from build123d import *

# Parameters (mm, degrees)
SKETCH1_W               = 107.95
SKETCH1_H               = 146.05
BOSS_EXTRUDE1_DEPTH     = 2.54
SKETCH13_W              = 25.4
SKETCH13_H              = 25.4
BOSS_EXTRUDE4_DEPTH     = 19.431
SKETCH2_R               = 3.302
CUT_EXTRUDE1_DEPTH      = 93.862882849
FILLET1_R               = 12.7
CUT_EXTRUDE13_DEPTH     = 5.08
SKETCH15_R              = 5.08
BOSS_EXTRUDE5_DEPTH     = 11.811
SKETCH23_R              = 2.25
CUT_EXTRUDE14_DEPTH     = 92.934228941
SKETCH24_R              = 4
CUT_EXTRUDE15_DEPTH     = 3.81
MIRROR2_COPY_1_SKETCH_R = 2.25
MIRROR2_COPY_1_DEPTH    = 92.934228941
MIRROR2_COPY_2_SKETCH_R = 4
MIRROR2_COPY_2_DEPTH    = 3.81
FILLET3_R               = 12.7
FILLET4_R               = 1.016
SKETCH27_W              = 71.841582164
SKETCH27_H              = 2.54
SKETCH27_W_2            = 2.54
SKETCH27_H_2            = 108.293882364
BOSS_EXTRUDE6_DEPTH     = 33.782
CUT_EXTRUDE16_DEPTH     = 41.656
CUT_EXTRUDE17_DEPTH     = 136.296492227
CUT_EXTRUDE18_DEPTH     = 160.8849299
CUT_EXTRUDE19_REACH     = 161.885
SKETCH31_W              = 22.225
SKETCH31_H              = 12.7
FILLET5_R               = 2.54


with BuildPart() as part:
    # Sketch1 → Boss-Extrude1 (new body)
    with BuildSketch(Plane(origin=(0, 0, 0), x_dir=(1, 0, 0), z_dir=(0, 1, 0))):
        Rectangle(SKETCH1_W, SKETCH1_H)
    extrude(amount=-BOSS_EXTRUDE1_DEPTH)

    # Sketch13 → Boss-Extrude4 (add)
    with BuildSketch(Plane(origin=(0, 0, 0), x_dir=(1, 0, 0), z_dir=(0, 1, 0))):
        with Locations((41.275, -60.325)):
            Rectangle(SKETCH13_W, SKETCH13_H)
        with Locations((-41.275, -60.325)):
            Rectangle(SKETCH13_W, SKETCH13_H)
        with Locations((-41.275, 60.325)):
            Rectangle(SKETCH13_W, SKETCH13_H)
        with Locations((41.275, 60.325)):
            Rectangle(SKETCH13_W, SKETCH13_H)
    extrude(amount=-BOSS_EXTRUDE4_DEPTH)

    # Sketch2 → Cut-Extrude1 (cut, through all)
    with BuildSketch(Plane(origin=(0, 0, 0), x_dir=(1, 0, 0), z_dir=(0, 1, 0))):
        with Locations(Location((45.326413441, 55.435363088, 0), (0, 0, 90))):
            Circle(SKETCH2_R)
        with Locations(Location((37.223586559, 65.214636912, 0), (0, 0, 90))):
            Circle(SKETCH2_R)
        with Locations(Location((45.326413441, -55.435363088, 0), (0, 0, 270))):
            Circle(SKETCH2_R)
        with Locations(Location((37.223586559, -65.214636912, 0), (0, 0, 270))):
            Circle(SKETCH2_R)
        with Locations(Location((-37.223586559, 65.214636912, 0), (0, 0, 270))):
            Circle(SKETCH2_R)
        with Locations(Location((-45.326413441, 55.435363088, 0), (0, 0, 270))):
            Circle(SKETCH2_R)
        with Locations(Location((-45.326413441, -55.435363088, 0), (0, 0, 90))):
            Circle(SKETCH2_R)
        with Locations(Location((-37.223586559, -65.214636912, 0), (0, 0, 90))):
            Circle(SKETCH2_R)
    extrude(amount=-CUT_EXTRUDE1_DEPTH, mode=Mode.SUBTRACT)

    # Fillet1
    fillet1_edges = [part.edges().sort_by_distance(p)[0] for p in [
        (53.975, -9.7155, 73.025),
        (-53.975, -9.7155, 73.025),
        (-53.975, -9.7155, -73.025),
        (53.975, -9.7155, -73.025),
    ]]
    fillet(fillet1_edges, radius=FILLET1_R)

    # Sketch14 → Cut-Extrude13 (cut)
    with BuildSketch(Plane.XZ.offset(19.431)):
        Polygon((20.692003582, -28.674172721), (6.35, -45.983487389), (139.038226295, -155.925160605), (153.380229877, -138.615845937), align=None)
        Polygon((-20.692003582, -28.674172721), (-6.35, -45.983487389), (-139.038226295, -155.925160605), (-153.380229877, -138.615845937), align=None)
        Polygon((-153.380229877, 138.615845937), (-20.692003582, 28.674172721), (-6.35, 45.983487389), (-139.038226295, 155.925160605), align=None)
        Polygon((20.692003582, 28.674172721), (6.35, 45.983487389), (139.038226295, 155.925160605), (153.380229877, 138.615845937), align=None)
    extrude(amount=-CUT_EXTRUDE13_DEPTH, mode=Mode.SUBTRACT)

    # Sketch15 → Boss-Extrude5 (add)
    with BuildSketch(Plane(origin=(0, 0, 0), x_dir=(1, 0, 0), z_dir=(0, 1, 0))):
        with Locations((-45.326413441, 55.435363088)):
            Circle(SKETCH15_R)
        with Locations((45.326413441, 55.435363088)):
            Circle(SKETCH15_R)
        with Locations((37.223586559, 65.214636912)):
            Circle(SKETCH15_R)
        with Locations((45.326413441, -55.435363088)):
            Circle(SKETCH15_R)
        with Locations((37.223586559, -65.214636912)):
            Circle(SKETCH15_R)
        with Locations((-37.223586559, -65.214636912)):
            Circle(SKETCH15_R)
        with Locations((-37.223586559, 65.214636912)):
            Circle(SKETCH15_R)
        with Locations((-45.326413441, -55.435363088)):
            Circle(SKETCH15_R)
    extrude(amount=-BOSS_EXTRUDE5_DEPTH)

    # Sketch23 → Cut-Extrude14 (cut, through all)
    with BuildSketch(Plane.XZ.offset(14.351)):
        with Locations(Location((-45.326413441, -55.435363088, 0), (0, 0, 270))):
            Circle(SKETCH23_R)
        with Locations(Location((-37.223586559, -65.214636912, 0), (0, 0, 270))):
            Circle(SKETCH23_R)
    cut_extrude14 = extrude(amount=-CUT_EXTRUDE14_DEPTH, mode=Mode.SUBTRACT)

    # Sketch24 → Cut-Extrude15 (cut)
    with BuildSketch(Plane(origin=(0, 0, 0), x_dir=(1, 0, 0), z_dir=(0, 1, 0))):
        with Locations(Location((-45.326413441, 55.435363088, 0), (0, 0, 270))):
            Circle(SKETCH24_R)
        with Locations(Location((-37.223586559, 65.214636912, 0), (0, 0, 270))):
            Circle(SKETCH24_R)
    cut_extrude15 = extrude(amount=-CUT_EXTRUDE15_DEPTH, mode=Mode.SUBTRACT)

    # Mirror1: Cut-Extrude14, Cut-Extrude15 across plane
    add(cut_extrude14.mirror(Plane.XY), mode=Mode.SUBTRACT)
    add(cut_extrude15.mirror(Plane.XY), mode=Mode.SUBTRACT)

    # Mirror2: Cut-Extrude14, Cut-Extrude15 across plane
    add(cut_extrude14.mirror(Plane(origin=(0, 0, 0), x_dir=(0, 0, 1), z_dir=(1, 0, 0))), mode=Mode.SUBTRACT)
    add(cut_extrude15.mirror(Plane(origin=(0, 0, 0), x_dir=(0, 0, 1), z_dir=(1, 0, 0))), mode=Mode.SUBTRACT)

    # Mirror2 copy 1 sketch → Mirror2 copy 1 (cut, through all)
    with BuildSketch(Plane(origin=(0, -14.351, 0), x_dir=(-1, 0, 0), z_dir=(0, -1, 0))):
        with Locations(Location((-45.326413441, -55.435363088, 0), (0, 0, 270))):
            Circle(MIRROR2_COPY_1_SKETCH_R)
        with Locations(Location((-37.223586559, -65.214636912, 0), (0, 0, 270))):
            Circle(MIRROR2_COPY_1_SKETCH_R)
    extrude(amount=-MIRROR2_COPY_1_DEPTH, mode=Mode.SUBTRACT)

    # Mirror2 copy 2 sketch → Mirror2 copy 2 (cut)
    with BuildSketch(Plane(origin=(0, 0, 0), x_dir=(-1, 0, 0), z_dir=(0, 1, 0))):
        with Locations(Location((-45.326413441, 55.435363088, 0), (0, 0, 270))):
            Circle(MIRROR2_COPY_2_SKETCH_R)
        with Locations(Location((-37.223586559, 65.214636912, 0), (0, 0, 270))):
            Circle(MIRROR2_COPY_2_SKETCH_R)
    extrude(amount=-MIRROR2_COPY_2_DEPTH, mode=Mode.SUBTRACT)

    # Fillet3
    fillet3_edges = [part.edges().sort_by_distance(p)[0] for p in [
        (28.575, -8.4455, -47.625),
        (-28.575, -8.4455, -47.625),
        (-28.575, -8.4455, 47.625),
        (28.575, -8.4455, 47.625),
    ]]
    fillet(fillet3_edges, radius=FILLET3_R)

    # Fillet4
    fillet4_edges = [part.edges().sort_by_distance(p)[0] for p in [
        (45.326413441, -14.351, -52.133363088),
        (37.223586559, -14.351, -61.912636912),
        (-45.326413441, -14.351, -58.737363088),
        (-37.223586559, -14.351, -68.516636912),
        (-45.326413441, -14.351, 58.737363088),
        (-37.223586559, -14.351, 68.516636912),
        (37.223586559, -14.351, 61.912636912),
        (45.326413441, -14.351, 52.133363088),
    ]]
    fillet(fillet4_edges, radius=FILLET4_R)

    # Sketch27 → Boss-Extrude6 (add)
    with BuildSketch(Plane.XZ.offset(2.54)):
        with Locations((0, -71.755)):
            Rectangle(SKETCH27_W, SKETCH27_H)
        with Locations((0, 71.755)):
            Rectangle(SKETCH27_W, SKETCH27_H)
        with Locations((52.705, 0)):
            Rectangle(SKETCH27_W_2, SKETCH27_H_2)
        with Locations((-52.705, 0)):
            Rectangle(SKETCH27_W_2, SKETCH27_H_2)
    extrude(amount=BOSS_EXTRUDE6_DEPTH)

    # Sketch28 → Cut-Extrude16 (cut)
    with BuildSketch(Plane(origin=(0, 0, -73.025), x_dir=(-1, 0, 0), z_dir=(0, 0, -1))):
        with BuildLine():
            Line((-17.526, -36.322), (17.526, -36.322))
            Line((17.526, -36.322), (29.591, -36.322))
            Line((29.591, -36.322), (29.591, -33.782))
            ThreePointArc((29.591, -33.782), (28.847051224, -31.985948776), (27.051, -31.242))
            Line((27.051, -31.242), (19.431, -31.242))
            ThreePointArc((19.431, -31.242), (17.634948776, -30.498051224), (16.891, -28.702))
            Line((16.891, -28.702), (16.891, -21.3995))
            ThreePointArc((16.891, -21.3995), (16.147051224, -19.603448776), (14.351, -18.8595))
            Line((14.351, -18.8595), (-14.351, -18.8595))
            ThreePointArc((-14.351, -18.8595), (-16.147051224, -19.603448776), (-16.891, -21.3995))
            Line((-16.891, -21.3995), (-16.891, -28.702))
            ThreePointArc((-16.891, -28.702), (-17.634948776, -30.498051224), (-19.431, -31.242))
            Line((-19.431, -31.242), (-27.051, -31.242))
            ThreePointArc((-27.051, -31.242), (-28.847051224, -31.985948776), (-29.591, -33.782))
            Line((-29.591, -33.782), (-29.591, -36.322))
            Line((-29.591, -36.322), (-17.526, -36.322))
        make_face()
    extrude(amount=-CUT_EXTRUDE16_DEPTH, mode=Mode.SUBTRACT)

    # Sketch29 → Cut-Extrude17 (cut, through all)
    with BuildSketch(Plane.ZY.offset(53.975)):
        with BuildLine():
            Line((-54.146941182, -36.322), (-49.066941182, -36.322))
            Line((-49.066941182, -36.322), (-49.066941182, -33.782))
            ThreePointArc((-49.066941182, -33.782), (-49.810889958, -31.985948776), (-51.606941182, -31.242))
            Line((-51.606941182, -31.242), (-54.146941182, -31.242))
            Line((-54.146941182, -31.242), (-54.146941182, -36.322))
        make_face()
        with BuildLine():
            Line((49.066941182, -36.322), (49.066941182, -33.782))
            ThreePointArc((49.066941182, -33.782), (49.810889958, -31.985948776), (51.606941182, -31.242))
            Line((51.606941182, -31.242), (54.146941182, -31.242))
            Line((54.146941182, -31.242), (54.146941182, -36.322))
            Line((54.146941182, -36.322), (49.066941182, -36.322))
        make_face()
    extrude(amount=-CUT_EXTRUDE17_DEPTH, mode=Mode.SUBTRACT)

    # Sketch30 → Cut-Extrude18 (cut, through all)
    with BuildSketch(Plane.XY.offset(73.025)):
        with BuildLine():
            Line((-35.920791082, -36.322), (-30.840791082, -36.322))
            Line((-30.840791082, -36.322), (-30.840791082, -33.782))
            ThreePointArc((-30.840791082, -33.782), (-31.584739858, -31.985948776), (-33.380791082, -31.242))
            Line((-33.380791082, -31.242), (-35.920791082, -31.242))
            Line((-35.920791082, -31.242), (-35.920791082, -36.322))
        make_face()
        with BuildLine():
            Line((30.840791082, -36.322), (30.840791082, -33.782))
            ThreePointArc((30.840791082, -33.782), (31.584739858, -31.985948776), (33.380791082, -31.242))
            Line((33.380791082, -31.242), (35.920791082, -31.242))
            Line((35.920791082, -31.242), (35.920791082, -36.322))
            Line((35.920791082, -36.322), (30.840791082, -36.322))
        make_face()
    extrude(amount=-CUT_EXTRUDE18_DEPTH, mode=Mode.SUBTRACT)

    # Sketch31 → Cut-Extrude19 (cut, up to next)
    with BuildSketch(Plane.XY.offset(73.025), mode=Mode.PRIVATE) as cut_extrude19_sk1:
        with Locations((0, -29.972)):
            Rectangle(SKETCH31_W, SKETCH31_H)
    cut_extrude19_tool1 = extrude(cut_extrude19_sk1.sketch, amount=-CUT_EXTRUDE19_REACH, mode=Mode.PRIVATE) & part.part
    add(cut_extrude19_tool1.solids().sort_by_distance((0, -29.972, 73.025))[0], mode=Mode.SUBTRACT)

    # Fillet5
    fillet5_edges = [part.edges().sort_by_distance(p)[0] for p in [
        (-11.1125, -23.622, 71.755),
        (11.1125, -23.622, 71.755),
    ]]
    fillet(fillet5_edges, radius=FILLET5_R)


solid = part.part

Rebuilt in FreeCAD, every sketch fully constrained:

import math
import FreeCAD as App
import Part
import Sketcher
Q = App.Units.Quantity


def edges_at(feature, points):
    """Names of the edges that pass closest to the given points."""
    edges = feature.Shape.Edges
    near = lambda p: min(range(len(edges)), key=lambda i: edges[i].distToShape(Part.Vertex(*p))[0])
    return sorted({f"Edge{near(p) + 1}" for p in points})

doc = App.newDocument("Part")
body = doc.addObject("PartDesign::Body", "Body")

sketch1 = body.newObject("Sketcher::SketchObject", "Sketch")
sketch1.AttachmentSupport = (doc.getObject("XZ_Plane"), [""])
sketch1.MapMode = "FlatFace"
sketch1.addGeometry([
    Part.LineSegment(App.Vector(-54, -73, 0), App.Vector(-54, 73, 0)),
    Part.LineSegment(App.Vector(-54, 73, 0), App.Vector(54, 73, 0)),
    Part.LineSegment(App.Vector(54, 73, 0), App.Vector(54, -73, 0)),
    Part.LineSegment(App.Vector(54, -73, 0), App.Vector(-54, -73, 0)),
], False)
sketch1.addConstraint([
    Sketcher.Constraint("Coincident", 0, 2, 1, 1),
    Sketcher.Constraint("Coincident", 1, 2, 2, 1),
    Sketcher.Constraint("Coincident", 2, 2, 3, 1),
    Sketcher.Constraint("Coincident", 3, 2, 0, 1),
    Sketcher.Constraint("Vertical", 0),
    Sketcher.Constraint("Horizontal", 1),
    Sketcher.Constraint("Vertical", 2),
    Sketcher.Constraint("Horizontal", 3),
    Sketcher.Constraint("Symmetric", 0, 2, 2, 2, -1, 1),
    Sketcher.Constraint("DistanceX", 1, 1, 1, 2, Q("4.25 in")),
    Sketcher.Constraint("DistanceY", 0, 1, 0, 2, Q("5.75 in")),
])
pad1 = body.newObject("PartDesign::Pad", "Pad")
pad1.Profile = sketch1
pad1.Length = Q("0.1 in")

sketch2 = body.newObject("Sketcher::SketchObject", "Sketch001")
sketch2.AttachmentSupport = (doc.getObject("XZ_Plane"), [""])
sketch2.MapMode = "FlatFace"
sketch2.addGeometry([
    Part.LineSegment(App.Vector(29, 48, 0), App.Vector(29, 73, 0)),
    Part.LineSegment(App.Vector(29, 73, 0), App.Vector(54, 73, 0)),
    Part.LineSegment(App.Vector(54, 73, 0), App.Vector(54, 48, 0)),
    Part.LineSegment(App.Vector(54, 48, 0), App.Vector(29, 48, 0)),
    Part.LineSegment(App.Vector(-54, 48, 0), App.Vector(-54, 73, 0)),
    Part.LineSegment(App.Vector(-54, 73, 0), App.Vector(-29, 73, 0)),
    Part.LineSegment(App.Vector(-29, 73, 0), App.Vector(-29, 48, 0)),
    Part.LineSegment(App.Vector(-29, 48, 0), App.Vector(-54, 48, 0)),
    Part.LineSegment(App.Vector(-54, -73, 0), App.Vector(-54, -48, 0)),
    Part.LineSegment(App.Vector(-54, -48, 0), App.Vector(-29, -48, 0)),
    Part.LineSegment(App.Vector(-29, -48, 0), App.Vector(-29, -73, 0)),
    Part.LineSegment(App.Vector(-29, -73, 0), App.Vector(-54, -73, 0)),
    Part.LineSegment(App.Vector(29, -73, 0), App.Vector(29, -48, 0)),
    Part.LineSegment(App.Vector(29, -48, 0), App.Vector(54, -48, 0)),
    Part.LineSegment(App.Vector(54, -48, 0), App.Vector(54, -73, 0)),
    Part.LineSegment(App.Vector(54, -73, 0), App.Vector(29, -73, 0)),
], False)
sketch2.addConstraint([
    Sketcher.Constraint("Coincident", 0, 2, 1, 1),
    Sketcher.Constraint("Coincident", 1, 2, 2, 1),
    Sketcher.Constraint("Coincident", 2, 2, 3, 1),
    Sketcher.Constraint("Coincident", 3, 2, 0, 1),
    Sketcher.Constraint("Coincident", 4, 2, 5, 1),
    Sketcher.Constraint("Coincident", 5, 2, 6, 1),
    Sketcher.Constraint("Coincident", 6, 2, 7, 1),
    Sketcher.Constraint("Coincident", 7, 2, 4, 1),
    Sketcher.Constraint("Coincident", 8, 2, 9, 1),
    Sketcher.Constraint("Coincident", 9, 2, 10, 1),
    Sketcher.Constraint("Coincident", 10, 2, 11, 1),
    Sketcher.Constraint("Coincident", 11, 2, 8, 1),
    Sketcher.Constraint("Coincident", 12, 2, 13, 1),
    Sketcher.Constraint("Coincident", 13, 2, 14, 1),
    Sketcher.Constraint("Coincident", 14, 2, 15, 1),
    Sketcher.Constraint("Coincident", 15, 2, 12, 1),
    Sketcher.Constraint("Vertical", 0),
    Sketcher.Constraint("Horizontal", 1),
    Sketcher.Constraint("Vertical", 2),
    Sketcher.Constraint("Horizontal", 3),
    Sketcher.Constraint("Vertical", 4),
    Sketcher.Constraint("Horizontal", 5),
    Sketcher.Constraint("Vertical", 6),
    Sketcher.Constraint("Horizontal", 7),
    Sketcher.Constraint("Vertical", 8),
    Sketcher.Constraint("Horizontal", 9),
    Sketcher.Constraint("Vertical", 10),
    Sketcher.Constraint("Horizontal", 11),
    Sketcher.Constraint("Vertical", 12),
    Sketcher.Constraint("Horizontal", 13),
    Sketcher.Constraint("Vertical", 14),
    Sketcher.Constraint("Horizontal", 15),
    Sketcher.Constraint("Symmetric", 2, 2, 8, 2, -1, 1),
    Sketcher.Constraint("Symmetric", 0, 2, 10, 2, -1, 1),
    Sketcher.Constraint("Symmetric", 6, 2, 12, 2, -1, 1),
    Sketcher.Constraint("Symmetric", 4, 2, 14, 2, -1, 1),
    Sketcher.Constraint("Symmetric", 1, 2, 4, 2, -2),
    Sketcher.Constraint("Symmetric", 3, 2, 6, 2, -2),
    Sketcher.Constraint("Equal", 15, 0),
    Sketcher.Constraint("DistanceX", 1, 1, 1, 2, Q("1 in")),
    Sketcher.Constraint("DistanceX", 4, 2, 0, 2, Q("3.25 in")),
    Sketcher.Constraint("DistanceY", 8, 2, 7, 2, Q("3.75 in")),
])
pad2 = body.newObject("PartDesign::Pad", "Pad001")
pad2.Profile = sketch2
pad2.Length = Q("0.765 in")

sketch3 = body.newObject("Sketcher::SketchObject", "Sketch002")
sketch3.AttachmentSupport = (doc.getObject("XZ_Plane"), [""])
sketch3.MapMode = "FlatFace"
sketch3.addGeometry([
    Part.Circle(App.Vector(45.3, -55.4, 0), App.Vector(0, 0, 1), 3.3),
    Part.Circle(App.Vector(37.2, -65.2, 0), App.Vector(0, 0, 1), 3.3),
    Part.Circle(App.Vector(45.3, 55.4, 0), App.Vector(0, 0, 1), 3.3),
    Part.Circle(App.Vector(37.2, 65.2, 0), App.Vector(0, 0, 1), 3.3),
    Part.Circle(App.Vector(-37.2, -65.2, 0), App.Vector(0, 0, 1), 3.3),
    Part.Circle(App.Vector(-45.3, -55.4, 0), App.Vector(0, 0, 1), 3.3),
    Part.Circle(App.Vector(-45.3, 55.4, 0), App.Vector(0, 0, 1), 3.3),
    Part.Circle(App.Vector(-37.2, 65.2, 0), App.Vector(0, 0, 1), 3.3),
], False)
sketch3.addConstraint([
    Sketcher.Constraint("Equal", 0, 1),
    Sketcher.Constraint("Equal", 1, 2),
    Sketcher.Constraint("Equal", 2, 3),
    Sketcher.Constraint("Equal", 3, 4),
    Sketcher.Constraint("Equal", 4, 5),
    Sketcher.Constraint("Equal", 5, 6),
    Sketcher.Constraint("Equal", 6, 7),
    Sketcher.Constraint("Symmetric", 3, 3, 4, 3, -1, 1),
    Sketcher.Constraint("Symmetric", 2, 3, 5, 3, -1, 1),
    Sketcher.Constraint("Symmetric", 0, 3, 6, 3, -1, 1),
    Sketcher.Constraint("Symmetric", 1, 3, 7, 3, -1, 1),
    Sketcher.Constraint("Symmetric", 1, 3, 4, 3, -2),
    Sketcher.Constraint("Symmetric", 0, 3, 5, 3, -2),
    Sketcher.Constraint("Diameter", 0, Q("0.26 in")),
    Sketcher.Constraint("DistanceY", 1, 3, 2, 3, Q("4.75 in")),
    Sketcher.Constraint("DistanceX", 4, 3, 0, 3, Q("3.25 in")),
    Sketcher.Constraint("DistanceX", -1, 1, 0, 3, 45.326413),
    Sketcher.Constraint("DistanceY", 0, 3, -1, 1, 55.435363),
])
pocket1 = body.newObject("PartDesign::Pocket", "Pocket")
pocket1.Profile = sketch3
pocket1.Type = "ThroughAll"
pocket1.Reversed = True
doc.recompute()

fillet = body.newObject("PartDesign::Fillet", "Fillet")
fillet.Base = (pocket1, edges_at(pocket1, [
    (53.975, -9.716, 73.025),
    (-53.975, -9.716, 73.025),
    (-53.975, -9.716, -73.025),
    (53.975, -9.716, -73.025),
]))
fillet.Radius = Q("0.5 in")

sketch4 = body.newObject("Sketcher::SketchObject", "Sketch003")
sketch4.AttachmentSupport = (doc.getObject("XZ_Plane"), [""])
sketch4.MapMode = "FlatFace"
sketch4.AttachmentOffset = App.Placement(App.Vector(0, 0, 0.765 * 25.4), App.Rotation())
sketch4.addGeometry([
    Part.LineSegment(App.Vector(21, -29, 0), App.Vector(6, -46, 0)),
    Part.LineSegment(App.Vector(6, -46, 0), App.Vector(139, -156, 0)),
    Part.LineSegment(App.Vector(139, -156, 0), App.Vector(153, -139, 0)),
    Part.LineSegment(App.Vector(153, -139, 0), App.Vector(21, -29, 0)),
    Part.LineSegment(App.Vector(-6, -46, 0), App.Vector(-21, -29, 0)),
    Part.LineSegment(App.Vector(-21, -29, 0), App.Vector(-153, -139, 0)),
    Part.LineSegment(App.Vector(-153, -139, 0), App.Vector(-139, -156, 0)),
    Part.LineSegment(App.Vector(-139, -156, 0), App.Vector(-6, -46, 0)),
    Part.LineSegment(App.Vector(-153, 139, 0), App.Vector(-21, 29, 0)),
    Part.LineSegment(App.Vector(-21, 29, 0), App.Vector(-6, 46, 0)),
    Part.LineSegment(App.Vector(-6, 46, 0), App.Vector(-139, 156, 0)),
    Part.LineSegment(App.Vector(-139, 156, 0), App.Vector(-153, 139, 0)),
    Part.LineSegment(App.Vector(6, 46, 0), App.Vector(21, 29, 0)),
    Part.LineSegment(App.Vector(21, 29, 0), App.Vector(153, 139, 0)),
    Part.LineSegment(App.Vector(153, 139, 0), App.Vector(139, 156, 0)),
    Part.LineSegment(App.Vector(139, 156, 0), App.Vector(6, 46, 0)),
], False)
sketch4.addConstraint([
    Sketcher.Constraint("Coincident", 0, 2, 1, 1),
    Sketcher.Constraint("Coincident", 1, 2, 2, 1),
    Sketcher.Constraint("Coincident", 2, 2, 3, 1),
    Sketcher.Constraint("Coincident", 3, 2, 0, 1),
    Sketcher.Constraint("Coincident", 4, 2, 5, 1),
    Sketcher.Constraint("Coincident", 5, 2, 6, 1),
    Sketcher.Constraint("Coincident", 6, 2, 7, 1),
    Sketcher.Constraint("Coincident", 7, 2, 4, 1),
    Sketcher.Constraint("Coincident", 8, 2, 9, 1),
    Sketcher.Constraint("Coincident", 9, 2, 10, 1),
    Sketcher.Constraint("Coincident", 10, 2, 11, 1),
    Sketcher.Constraint("Coincident", 11, 2, 8, 1),
    Sketcher.Constraint("Coincident", 12, 2, 13, 1),
    Sketcher.Constraint("Coincident", 13, 2, 14, 1),
    Sketcher.Constraint("Coincident", 14, 2, 15, 1),
    Sketcher.Constraint("Coincident", 15, 2, 12, 1),
    Sketcher.Constraint("Symmetric", 3, 2, 8, 2, -1, 1),
    Sketcher.Constraint("Symmetric", 0, 2, 9, 2, -1, 1),
    Sketcher.Constraint("Symmetric", 1, 2, 10, 2, -1, 1),
    Sketcher.Constraint("Symmetric", 2, 2, 11, 2, -1, 1),
    Sketcher.Constraint("Symmetric", 4, 2, 12, 2, -1, 1),
    Sketcher.Constraint("Symmetric", 5, 2, 13, 2, -1, 1),
    Sketcher.Constraint("Symmetric", 6, 2, 14, 2, -1, 1),
    Sketcher.Constraint("Symmetric", 7, 2, 15, 2, -1, 1),
    Sketcher.Constraint("Symmetric", 3, 2, 4, 2, -2),
    Sketcher.Constraint("Symmetric", 2, 2, 5, 2, -2),
    Sketcher.Constraint("Symmetric", 1, 2, 6, 2, -2),
    Sketcher.Constraint("Symmetric", 0, 2, 7, 2, -2),
    Sketcher.Constraint("Perpendicular", 0, 1),
    Sketcher.Constraint("Perpendicular", 1, 2),
    Sketcher.Constraint("Perpendicular", 2, 3),
    Sketcher.Constraint("DistanceX", 7, 2, 0, 2, Q("0.5 in")),
    Sketcher.Constraint("Distance", 0, Q("0.885 in")),
    Sketcher.Constraint("DistanceX", 3, 2, 1, 2, Q("4.6593001 in")),
    Sketcher.Constraint("DistanceY", 1, 2, -1, 1, 155.925161),
    Sketcher.Constraint("DistanceX", -1, 1, 2, 2, 153.38023),
])
pocket2 = body.newObject("PartDesign::Pocket", "Pocket001")
pocket2.Profile = sketch4
pocket2.Length = Q("0.2 in")

sketch5 = body.newObject("Sketcher::SketchObject", "Sketch004")
sketch5.AttachmentSupport = (doc.getObject("XZ_Plane"), [""])
sketch5.MapMode = "FlatFace"
sketch5.addGeometry([
    Part.Circle(App.Vector(-45, -55, 0), App.Vector(0, 0, 1), 5),
    Part.Circle(App.Vector(45, -55, 0), App.Vector(0, 0, 1), 5),
    Part.Circle(App.Vector(37, -65, 0), App.Vector(0, 0, 1), 5),
    Part.Circle(App.Vector(45, 55, 0), App.Vector(0, 0, 1), 5),
    Part.Circle(App.Vector(37, 65, 0), App.Vector(0, 0, 1), 5),
    Part.Circle(App.Vector(-37, 65, 0), App.Vector(0, 0, 1), 5),
    Part.Circle(App.Vector(-37, -65, 0), App.Vector(0, 0, 1), 5),
    Part.Circle(App.Vector(-45, 55, 0), App.Vector(0, 0, 1), 5),
], False)
sketch5.addConstraint([
    Sketcher.Constraint("Equal", 0, 1),
    Sketcher.Constraint("Equal", 1, 2),
    Sketcher.Constraint("Equal", 2, 3),
    Sketcher.Constraint("Equal", 3, 4),
    Sketcher.Constraint("Equal", 4, 5),
    Sketcher.Constraint("Equal", 5, 6),
    Sketcher.Constraint("Equal", 6, 7),
    Sketcher.Constraint("Symmetric", 0, 3, 3, 3, -1, 1),
    Sketcher.Constraint("Symmetric", 2, 3, 5, 3, -1, 1),
    Sketcher.Constraint("Symmetric", 4, 3, 6, 3, -1, 1),
    Sketcher.Constraint("Symmetric", 1, 3, 7, 3, -1, 1),
    Sketcher.Constraint("Symmetric", 0, 3, 1, 3, -2),
    Sketcher.Constraint("Symmetric", 4, 3, 5, 3, -2),
    Sketcher.Constraint("Diameter", 0, Q("0.4 in")),
    Sketcher.Constraint("DistanceX", 0, 3, 2, 3, Q("3.25 in")),
    Sketcher.Constraint("DistanceY", 2, 3, 3, 3, Q("4.75 in")),
    Sketcher.Constraint("DistanceX", 0, 3, -1, 1, 45.326413),
    Sketcher.Constraint("DistanceY", 0, 3, -1, 1, 55.435363),
])
pad3 = body.newObject("PartDesign::Pad", "Pad002")
pad3.Profile = sketch5
pad3.Length = Q("0.465 in")

sketch6 = body.newObject("Sketcher::SketchObject", "Sketch005")
sketch6.AttachmentSupport = (doc.getObject("XZ_Plane"), [""])
sketch6.MapMode = "FlatFace"
sketch6.AttachmentOffset = App.Placement(App.Vector(0, 0, 0.565 * 25.4), App.Rotation())
sketch6.addGeometry([
    Part.Circle(App.Vector(-45.3, -55.4, 0), App.Vector(0, 0, 1), 2.2),
    Part.Circle(App.Vector(-37.2, -65.2, 0), App.Vector(0, 0, 1), 2.2),
], False)
sketch6.addConstraint([
    Sketcher.Constraint("Equal", 0, 1),
    Sketcher.Constraint("Diameter", 0, 4.5),
    Sketcher.Constraint("DistanceX", 0, 3, -1, 1, 45.326413),
    Sketcher.Constraint("DistanceY", 0, 3, -1, 1, 55.435363),
    Sketcher.Constraint("DistanceX", 1, 3, -1, 1, 37.223587),
    Sketcher.Constraint("DistanceY", 1, 3, -1, 1, 65.214637),
])
pocket3 = body.newObject("PartDesign::Pocket", "Pocket002")
pocket3.Profile = sketch6
pocket3.Type = "ThroughAll"

sketch7 = body.newObject("Sketcher::SketchObject", "Sketch006")
sketch7.AttachmentSupport = (doc.getObject("XZ_Plane"), [""])
sketch7.MapMode = "FlatFace"
sketch7.addGeometry([
    Part.Circle(App.Vector(-45.3, -55.4, 0), App.Vector(0, 0, 1), 4),
    Part.Circle(App.Vector(-37.2, -65.2, 0), App.Vector(0, 0, 1), 4),
], False)
sketch7.addConstraint([
    Sketcher.Constraint("Equal", 0, 1),
    Sketcher.Constraint("Diameter", 0, 8.0),
    Sketcher.Constraint("DistanceX", 0, 3, -1, 1, 45.326413),
    Sketcher.Constraint("DistanceY", 0, 3, -1, 1, 55.435363),
    Sketcher.Constraint("DistanceX", 1, 3, -1, 1, 37.223587),
    Sketcher.Constraint("DistanceY", 1, 3, -1, 1, 65.214637),
])
pocket4 = body.newObject("PartDesign::Pocket", "Pocket003")
pocket4.Profile = sketch7
pocket4.Length = Q("0.15 in")
pocket4.Reversed = True
doc.recompute()

mirrored = body.newObject("PartDesign::Mirrored", "Mirrored")
mirrored.Originals = [pocket3, pocket4]
mirrored.MirrorPlane = (doc.getObject("XY_Plane"), [""])
body.Tip = mirrored
doc.recompute()

mirrored2 = body.newObject("PartDesign::Mirrored", "Mirrored001")
mirrored2.Originals = [pocket3, pocket4]
mirrored2.MirrorPlane = (doc.getObject("YZ_Plane"), [""])
body.Tip = mirrored2

sketch8 = body.newObject("Sketcher::SketchObject", "Sketch007")
sketch8.AttachmentSupport = (doc.getObject("XZ_Plane"), [""])
sketch8.MapMode = "FlatFace"
sketch8.AttachmentOffset = App.Placement(App.Vector(0, 0, 0.565 * 25.4), App.Rotation())
sketch8.addGeometry([
    Part.Circle(App.Vector(45.3, 55.4, 0), App.Vector(0, 0, 1), 2.2),
    Part.Circle(App.Vector(37.2, 65.2, 0), App.Vector(0, 0, 1), 2.2),
], False)
sketch8.addConstraint([
    Sketcher.Constraint("Equal", 0, 1),
    Sketcher.Constraint("Diameter", 0, 4.5),
    Sketcher.Constraint("DistanceX", -1, 1, 0, 3, 45.326413),
    Sketcher.Constraint("DistanceY", -1, 1, 0, 3, 55.435363),
    Sketcher.Constraint("DistanceX", -1, 1, 1, 3, 37.223587),
    Sketcher.Constraint("DistanceY", -1, 1, 1, 3, 65.214637),
])
pocket5 = body.newObject("PartDesign::Pocket", "Pocket004")
pocket5.Profile = sketch8
pocket5.Type = "ThroughAll"

sketch9 = body.newObject("Sketcher::SketchObject", "Sketch008")
sketch9.AttachmentSupport = (doc.getObject("XZ_Plane"), [""])
sketch9.MapMode = "FlatFace"
sketch9.addGeometry([
    Part.Circle(App.Vector(45.3, 55.4, 0), App.Vector(0, 0, 1), 4),
    Part.Circle(App.Vector(37.2, 65.2, 0), App.Vector(0, 0, 1), 4),
], False)
sketch9.addConstraint([
    Sketcher.Constraint("Equal", 0, 1),
    Sketcher.Constraint("Diameter", 0, 8.0),
    Sketcher.Constraint("DistanceX", -1, 1, 0, 3, 45.326413),
    Sketcher.Constraint("DistanceY", -1, 1, 0, 3, 55.435363),
    Sketcher.Constraint("DistanceX", -1, 1, 1, 3, 37.223587),
    Sketcher.Constraint("DistanceY", -1, 1, 1, 3, 65.214637),
])
pocket6 = body.newObject("PartDesign::Pocket", "Pocket005")
pocket6.Profile = sketch9
pocket6.Length = Q("0.15 in")
pocket6.Reversed = True
doc.recompute()

fillet2 = body.newObject("PartDesign::Fillet", "Fillet001")
fillet2.Base = (pocket6, edges_at(pocket6, [
    (28.575, -8.445, -47.625),
    (-28.575, -8.445, -47.625),
    (-28.575, -8.445, 47.625),
    (28.575, -8.445, 47.625),
]))
fillet2.Radius = Q("0.5 in")
doc.recompute()

fillet3 = body.newObject("PartDesign::Fillet", "Fillet002")
fillet3.Base = (fillet2, edges_at(fillet2, [
    (45.326, -14.351, -52.133),
    (37.224, -14.351, -61.913),
    (-45.326, -14.351, -58.737),
    (-37.224, -14.351, -68.517),
    (-45.326, -14.351, 58.737),
    (-37.224, -14.351, 68.517),
    (37.224, -14.351, 61.913),
    (45.326, -14.351, 52.133),
]))
fillet3.Radius = Q("0.04 in")

sketch10 = body.newObject("Sketcher::SketchObject", "Sketch009")
sketch10.AttachmentSupport = (doc.getObject("XZ_Plane"), [""])
sketch10.MapMode = "FlatFace"
sketch10.AttachmentOffset = App.Placement(App.Vector(0, 0, 0.1 * 25.4), App.Rotation())
sketch10.addGeometry([
    Part.LineSegment(App.Vector(-35.9, -70.5, 0), App.Vector(-35.9, -73, 0)),
    Part.LineSegment(App.Vector(-35.9, -73, 0), App.Vector(35.9, -73, 0)),
    Part.LineSegment(App.Vector(35.9, -73, 0), App.Vector(35.9, -70.5, 0)),
    Part.LineSegment(App.Vector(35.9, -70.5, 0), App.Vector(-35.9, -70.5, 0)),
    Part.LineSegment(App.Vector(-35.9, 73, 0), App.Vector(-35.9, 70.5, 0)),
    Part.LineSegment(App.Vector(-35.9, 70.5, 0), App.Vector(35.9, 70.5, 0)),
    Part.LineSegment(App.Vector(35.9, 70.5, 0), App.Vector(35.9, 73, 0)),
    Part.LineSegment(App.Vector(35.9, 73, 0), App.Vector(-35.9, 73, 0)),
    Part.LineSegment(App.Vector(51.4, 54.1, 0), App.Vector(51.4, -54.1, 0)),
    Part.LineSegment(App.Vector(51.4, -54.1, 0), App.Vector(54, -54.1, 0)),
    Part.LineSegment(App.Vector(54, -54.1, 0), App.Vector(54, 54.1, 0)),
    Part.LineSegment(App.Vector(54, 54.1, 0), App.Vector(51.4, 54.1, 0)),
    Part.LineSegment(App.Vector(-54, 54.1, 0), App.Vector(-54, -54.1, 0)),
    Part.LineSegment(App.Vector(-54, -54.1, 0), App.Vector(-51.4, -54.1, 0)),
    Part.LineSegment(App.Vector(-51.4, -54.1, 0), App.Vector(-51.4, 54.1, 0)),
    Part.LineSegment(App.Vector(-51.4, 54.1, 0), App.Vector(-54, 54.1, 0)),
], False)
sketch10.addConstraint([
    Sketcher.Constraint("Coincident", 0, 2, 1, 1),
    Sketcher.Constraint("Coincident", 1, 2, 2, 1),
    Sketcher.Constraint("Coincident", 2, 2, 3, 1),
    Sketcher.Constraint("Coincident", 3, 2, 0, 1),
    Sketcher.Constraint("Coincident", 4, 2, 5, 1),
    Sketcher.Constraint("Coincident", 5, 2, 6, 1),
    Sketcher.Constraint("Coincident", 6, 2, 7, 1),
    Sketcher.Constraint("Coincident", 7, 2, 4, 1),
    Sketcher.Constraint("Coincident", 8, 2, 9, 1),
    Sketcher.Constraint("Coincident", 9, 2, 10, 1),
    Sketcher.Constraint("Coincident", 10, 2, 11, 1),
    Sketcher.Constraint("Coincident", 11, 2, 8, 1),
    Sketcher.Constraint("Coincident", 12, 2, 13, 1),
    Sketcher.Constraint("Coincident", 13, 2, 14, 1),
    Sketcher.Constraint("Coincident", 14, 2, 15, 1),
    Sketcher.Constraint("Coincident", 15, 2, 12, 1),
    Sketcher.Constraint("Vertical", 0),
    Sketcher.Constraint("Horizontal", 1),
    Sketcher.Constraint("Vertical", 2),
    Sketcher.Constraint("Horizontal", 3),
    Sketcher.Constraint("Vertical", 4),
    Sketcher.Constraint("Horizontal", 5),
    Sketcher.Constraint("Vertical", 6),
    Sketcher.Constraint("Horizontal", 7),
    Sketcher.Constraint("Vertical", 8),
    Sketcher.Constraint("Horizontal", 9),
    Sketcher.Constraint("Vertical", 10),
    Sketcher.Constraint("Horizontal", 11),
    Sketcher.Constraint("Vertical", 12),
    Sketcher.Constraint("Horizontal", 13),
    Sketcher.Constraint("Vertical", 14),
    Sketcher.Constraint("Horizontal", 15),
    Sketcher.Constraint("Symmetric", 2, 2, 4, 2, -1, 1),
    Sketcher.Constraint("Symmetric", 0, 2, 6, 2, -1, 1),
    Sketcher.Constraint("Symmetric", 10, 2, 12, 2, -1, 1),
    Sketcher.Constraint("Symmetric", 8, 2, 14, 2, -1, 1),
    Sketcher.Constraint("Horizontal", 9, 2, 12, 2),
    Sketcher.Constraint("Vertical", 3, 2, 4, 2),
    Sketcher.Constraint("Equal", 15, 0),
    Sketcher.Constraint("DistanceX", 9, 1, 9, 2, Q("0.1 in")),
    Sketcher.Constraint("DistanceY", 3, 2, 4, 2, Q("5.55 in")),
    Sketcher.Constraint("DistanceX", 12, 2, 8, 2, Q("4.15 in")),
    Sketcher.Constraint("DistanceX", 1, 1, 1, 2, 71.841582),
    Sketcher.Constraint("DistanceY", 8, 2, 8, 1, 108.293882),
])
pad4 = body.newObject("PartDesign::Pad", "Pad003")
pad4.Profile = sketch10
pad4.Length = Q("1.33 in")

sketch11 = body.newObject("Sketcher::SketchObject", "Sketch010")
sketch11.AttachmentSupport = (doc.getObject("XY_Plane"), [""])
sketch11.MapMode = "FlatFace"
sketch11.AttachmentOffset = App.Placement(App.Vector(0, 0, -2.875 * 25.4), App.Rotation())
sketch11.addGeometry([
    Part.LineSegment(App.Vector(-29.6, -36.3, 0), App.Vector(-29.6, -33.8, 0)),
    Part.ArcOfCircle(Part.Circle(App.Vector(-27.1, -33.8, 0), App.Vector(0, 0, 1), 2.5), math.radians(90), math.radians(180)),
    Part.LineSegment(App.Vector(-27.1, -31.2, 0), App.Vector(-19.4, -31.2, 0)),
    Part.ArcOfCircle(Part.Circle(App.Vector(-19.4, -28.7, 0), App.Vector(0, 0, 1), 2.5), math.radians(-90), math.radians(0)),
    Part.LineSegment(App.Vector(-16.9, -28.7, 0), App.Vector(-16.9, -21.4, 0)),
    Part.ArcOfCircle(Part.Circle(App.Vector(-14.4, -21.4, 0), App.Vector(0, 0, 1), 2.5), math.radians(90), math.radians(180)),
    Part.LineSegment(App.Vector(-14.4, -18.9, 0), App.Vector(14.4, -18.9, 0)),
    Part.ArcOfCircle(Part.Circle(App.Vector(14.4, -21.4, 0), App.Vector(0, 0, 1), 2.5), math.radians(0), math.radians(90)),
    Part.LineSegment(App.Vector(16.9, -21.4, 0), App.Vector(16.9, -28.7, 0)),
    Part.ArcOfCircle(Part.Circle(App.Vector(19.4, -28.7, 0), App.Vector(0, 0, 1), 2.5), math.radians(-180), math.radians(-90)),
    Part.LineSegment(App.Vector(19.4, -31.2, 0), App.Vector(27.1, -31.2, 0)),
    Part.ArcOfCircle(Part.Circle(App.Vector(27.1, -33.8, 0), App.Vector(0, 0, 1), 2.5), math.radians(0), math.radians(90)),
    Part.LineSegment(App.Vector(29.6, -33.8, 0), App.Vector(29.6, -36.3, 0)),
    Part.LineSegment(App.Vector(29.6, -36.3, 0), App.Vector(-29.6, -36.3, 0)),
], False)
sketch11.addConstraint([
    Sketcher.Constraint("Tangent", 0, 2, 1, 2),
    Sketcher.Constraint("Tangent", 1, 1, 2, 1),
    Sketcher.Constraint("Tangent", 2, 2, 3, 1),
    Sketcher.Constraint("Tangent", 3, 2, 4, 1),
    Sketcher.Constraint("Tangent", 4, 2, 5, 2),
    Sketcher.Constraint("Tangent", 5, 1, 6, 1),
    Sketcher.Constraint("Tangent", 6, 2, 7, 2),
    Sketcher.Constraint("Tangent", 7, 1, 8, 1),
    Sketcher.Constraint("Tangent", 8, 2, 9, 1),
    Sketcher.Constraint("Tangent", 9, 2, 10, 1),
    Sketcher.Constraint("Tangent", 10, 2, 11, 2),
    Sketcher.Constraint("Tangent", 11, 1, 12, 1),
    Sketcher.Constraint("Coincident", 12, 2, 13, 1),
    Sketcher.Constraint("Coincident", 13, 2, 0, 1),
    Sketcher.Constraint("Vertical", 0),
    Sketcher.Constraint("Horizontal", 2),
    Sketcher.Constraint("Vertical", 4),
    Sketcher.Constraint("Horizontal", 6),
    Sketcher.Constraint("Vertical", 8),
    Sketcher.Constraint("Horizontal", 10),
    Sketcher.Constraint("Vertical", 12),
    Sketcher.Constraint("Horizontal", 13),
    Sketcher.Constraint("Equal", 1, 3),
    Sketcher.Constraint("Equal", 3, 5),
    Sketcher.Constraint("Equal", 5, 7),
    Sketcher.Constraint("Equal", 7, 9),
    Sketcher.Constraint("Equal", 9, 11),
    Sketcher.Constraint("Symmetric", 3, 3, 9, 3, -2),
    Sketcher.Constraint("Equal", 2, 10),
    Sketcher.Constraint("Radius", 1, Q("0.1 in")),
    Sketcher.Constraint("DistanceX", 2, 1, 2, 2, Q("0.3 in")),
    Sketcher.Constraint("DistanceY", 0, 1, 0, 2, Q("0.1 in")),
    Sketcher.Constraint("DistanceX", 6, 1, 6, 2, Q("1.13 in")),
    Sketcher.Constraint("DistanceY", 1, 3, -1, 1, Q("1.33 in")),
    Sketcher.Constraint("DistanceY", 4, 1, 4, 2, Q("0.2875 in")),
])
pocket7 = body.newObject("PartDesign::Pocket", "Pocket006")
pocket7.Profile = sketch11
pocket7.Length = Q("1.64 in")
pocket7.Reversed = True

sketch12 = body.newObject("Sketcher::SketchObject", "Sketch011")
sketch12.AttachmentSupport = (doc.getObject("YZ_Plane"), [""])
sketch12.MapMode = "FlatFace"
sketch12.AttachmentOffset = App.Placement(App.Vector(0, 0, -2.125 * 25.4), App.Rotation())
sketch12.addGeometry([
    Part.LineSegment(App.Vector(-36.3, -54.1, 0), App.Vector(-36.3, -49.1, 0)),
    Part.LineSegment(App.Vector(-36.3, -49.1, 0), App.Vector(-33.8, -49.1, 0)),
    Part.ArcOfCircle(Part.Circle(App.Vector(-33.8, -51.6, 0), App.Vector(0, 0, 1), 2.5), math.radians(0), math.radians(90)),
    Part.LineSegment(App.Vector(-31.2, -51.6, 0), App.Vector(-31.2, -54.1, 0)),
    Part.LineSegment(App.Vector(-31.2, -54.1, 0), App.Vector(-36.3, -54.1, 0)),
    Part.LineSegment(App.Vector(-33.8, 49.1, 0), App.Vector(-36.3, 49.1, 0)),
    Part.LineSegment(App.Vector(-36.3, 49.1, 0), App.Vector(-36.3, 54.1, 0)),
    Part.LineSegment(App.Vector(-36.3, 54.1, 0), App.Vector(-31.2, 54.1, 0)),
    Part.LineSegment(App.Vector(-31.2, 54.1, 0), App.Vector(-31.2, 51.6, 0)),
    Part.ArcOfCircle(Part.Circle(App.Vector(-33.8, 51.6, 0), App.Vector(0, 0, 1), 2.5), math.radians(-90), math.radians(0)),
], False)
sketch12.addConstraint([
    Sketcher.Constraint("Coincident", 0, 2, 1, 1),
    Sketcher.Constraint("Tangent", 1, 2, 2, 2),
    Sketcher.Constraint("Tangent", 2, 1, 3, 1),
    Sketcher.Constraint("Coincident", 3, 2, 4, 1),
    Sketcher.Constraint("Coincident", 4, 2, 0, 1),
    Sketcher.Constraint("Coincident", 5, 2, 6, 1),
    Sketcher.Constraint("Coincident", 6, 2, 7, 1),
    Sketcher.Constraint("Coincident", 7, 2, 8, 1),
    Sketcher.Constraint("Tangent", 8, 2, 9, 2),
    Sketcher.Constraint("Tangent", 9, 1, 5, 1),
    Sketcher.Constraint("Vertical", 0),
    Sketcher.Constraint("Horizontal", 1),
    Sketcher.Constraint("Vertical", 3),
    Sketcher.Constraint("Horizontal", 4),
    Sketcher.Constraint("Horizontal", 5),
    Sketcher.Constraint("Vertical", 6),
    Sketcher.Constraint("Horizontal", 7),
    Sketcher.Constraint("Vertical", 8),
    Sketcher.Constraint("Equal", 2, 9),
    Sketcher.Constraint("Symmetric", 2, 3, 9, 3, -1),
    Sketcher.Constraint("Symmetric", 4, 2, 6, 2, -1),
    Sketcher.Constraint("Equal", 7, 0),
    Sketcher.Constraint("Radius", 2, Q("0.1 in")),
    Sketcher.Constraint("DistanceX", 1, 1, 1, 2, Q("0.1 in")),
    Sketcher.Constraint("DistanceX", 2, 3, -1, 1, Q("1.33 in")),
    Sketcher.Constraint("DistanceY", 2, 3, -1, 1, 51.606941),
])
pocket8 = body.newObject("PartDesign::Pocket", "Pocket007")
pocket8.Profile = sketch12
pocket8.Type = "ThroughAll"
pocket8.Reversed = True

sketch13 = body.newObject("Sketcher::SketchObject", "Sketch012")
sketch13.AttachmentSupport = (doc.getObject("XY_Plane"), [""])
sketch13.MapMode = "FlatFace"
sketch13.AttachmentOffset = App.Placement(App.Vector(0, 0, 2.875 * 25.4), App.Rotation())
sketch13.addGeometry([
    Part.LineSegment(App.Vector(-35.9, -36.3, 0), App.Vector(-30.8, -36.3, 0)),
    Part.LineSegment(App.Vector(-30.8, -36.3, 0), App.Vector(-30.8, -33.8, 0)),
    Part.ArcOfCircle(Part.Circle(App.Vector(-33.4, -33.8, 0), App.Vector(0, 0, 1), 2.5), math.radians(0), math.radians(90)),
    Part.LineSegment(App.Vector(-33.4, -31.2, 0), App.Vector(-35.9, -31.2, 0)),
    Part.LineSegment(App.Vector(-35.9, -31.2, 0), App.Vector(-35.9, -36.3, 0)),
    Part.LineSegment(App.Vector(30.8, -33.8, 0), App.Vector(30.8, -36.3, 0)),
    Part.LineSegment(App.Vector(30.8, -36.3, 0), App.Vector(35.9, -36.3, 0)),
    Part.LineSegment(App.Vector(35.9, -36.3, 0), App.Vector(35.9, -31.2, 0)),
    Part.LineSegment(App.Vector(35.9, -31.2, 0), App.Vector(33.4, -31.2, 0)),
    Part.ArcOfCircle(Part.Circle(App.Vector(33.4, -33.8, 0), App.Vector(0, 0, 1), 2.5), math.radians(90), math.radians(180)),
], False)
sketch13.addConstraint([
    Sketcher.Constraint("Coincident", 0, 2, 1, 1),
    Sketcher.Constraint("Tangent", 1, 2, 2, 1),
    Sketcher.Constraint("Tangent", 2, 2, 3, 1),
    Sketcher.Constraint("Coincident", 3, 2, 4, 1),
    Sketcher.Constraint("Coincident", 4, 2, 0, 1),
    Sketcher.Constraint("Coincident", 5, 2, 6, 1),
    Sketcher.Constraint("Coincident", 6, 2, 7, 1),
    Sketcher.Constraint("Coincident", 7, 2, 8, 1),
    Sketcher.Constraint("Tangent", 8, 2, 9, 1),
    Sketcher.Constraint("Tangent", 9, 2, 5, 1),
    Sketcher.Constraint("Horizontal", 0),
    Sketcher.Constraint("Vertical", 1),
    Sketcher.Constraint("Horizontal", 3),
    Sketcher.Constraint("Vertical", 4),
    Sketcher.Constraint("Vertical", 5),
    Sketcher.Constraint("Horizontal", 6),
    Sketcher.Constraint("Vertical", 7),
    Sketcher.Constraint("Horizontal", 8),
    Sketcher.Constraint("Equal", 2, 9),
    Sketcher.Constraint("Symmetric", 2, 3, 9, 3, -2),
    Sketcher.Constraint("Symmetric", 4, 2, 6, 2, -2),
    Sketcher.Constraint("Equal", 8, 1),
    Sketcher.Constraint("Radius", 2, Q("0.1 in")),
    Sketcher.Constraint("DistanceX", 0, 1, 0, 2, Q("0.2 in")),
    Sketcher.Constraint("DistanceY", 2, 3, -1, 1, Q("1.33 in")),
    Sketcher.Constraint("DistanceX", 2, 3, -1, 1, 33.380791),
])
pocket9 = body.newObject("PartDesign::Pocket", "Pocket008")
pocket9.Profile = sketch13
pocket9.Type = "ThroughAll"

sketch14 = body.newObject("Sketcher::SketchObject", "Sketch013")
sketch14.AttachmentSupport = (doc.getObject("XY_Plane"), [""])
sketch14.MapMode = "FlatFace"
sketch14.AttachmentOffset = App.Placement(App.Vector(0, 0, 2.875 * 25.4), App.Rotation())
sketch14.addGeometry([
    Part.LineSegment(App.Vector(-11, -24, 0), App.Vector(-11, -36, 0)),
    Part.LineSegment(App.Vector(-11, -36, 0), App.Vector(11, -36, 0)),
    Part.LineSegment(App.Vector(11, -36, 0), App.Vector(11, -24, 0)),
    Part.LineSegment(App.Vector(11, -24, 0), App.Vector(-11, -24, 0)),
], False)
sketch14.addConstraint([
    Sketcher.Constraint("Coincident", 0, 2, 1, 1),
    Sketcher.Constraint("Coincident", 1, 2, 2, 1),
    Sketcher.Constraint("Coincident", 2, 2, 3, 1),
    Sketcher.Constraint("Coincident", 3, 2, 0, 1),
    Sketcher.Constraint("Vertical", 0),
    Sketcher.Constraint("Horizontal", 1),
    Sketcher.Constraint("Vertical", 2),
    Sketcher.Constraint("Horizontal", 3),
    Sketcher.Constraint("DistanceY", 0, 2, 0, 1, Q("0.5 in")),
    Sketcher.Constraint("DistanceX", 1, 1, 1, 2, Q("0.875 in")),
    Sketcher.Constraint("DistanceY", 0, 2, -1, 1, Q("1.43 in")),
    Sketcher.Constraint("DistanceX", 0, 2, -1, 1, Q("0.4375 in")),
])
pocket10 = body.newObject("PartDesign::Pocket", "Pocket009")
pocket10.Profile = sketch14
pocket10.Type = "UpToFirst"
doc.recompute()

fillet4 = body.newObject("PartDesign::Fillet", "Fillet003")
fillet4.Base = (pocket10, edges_at(pocket10, [(-11.113, -23.622, 71.755), (11.113, -23.622, 71.755)]))
fillet4.Radius = Q("0.1 in")

doc.recompute()
